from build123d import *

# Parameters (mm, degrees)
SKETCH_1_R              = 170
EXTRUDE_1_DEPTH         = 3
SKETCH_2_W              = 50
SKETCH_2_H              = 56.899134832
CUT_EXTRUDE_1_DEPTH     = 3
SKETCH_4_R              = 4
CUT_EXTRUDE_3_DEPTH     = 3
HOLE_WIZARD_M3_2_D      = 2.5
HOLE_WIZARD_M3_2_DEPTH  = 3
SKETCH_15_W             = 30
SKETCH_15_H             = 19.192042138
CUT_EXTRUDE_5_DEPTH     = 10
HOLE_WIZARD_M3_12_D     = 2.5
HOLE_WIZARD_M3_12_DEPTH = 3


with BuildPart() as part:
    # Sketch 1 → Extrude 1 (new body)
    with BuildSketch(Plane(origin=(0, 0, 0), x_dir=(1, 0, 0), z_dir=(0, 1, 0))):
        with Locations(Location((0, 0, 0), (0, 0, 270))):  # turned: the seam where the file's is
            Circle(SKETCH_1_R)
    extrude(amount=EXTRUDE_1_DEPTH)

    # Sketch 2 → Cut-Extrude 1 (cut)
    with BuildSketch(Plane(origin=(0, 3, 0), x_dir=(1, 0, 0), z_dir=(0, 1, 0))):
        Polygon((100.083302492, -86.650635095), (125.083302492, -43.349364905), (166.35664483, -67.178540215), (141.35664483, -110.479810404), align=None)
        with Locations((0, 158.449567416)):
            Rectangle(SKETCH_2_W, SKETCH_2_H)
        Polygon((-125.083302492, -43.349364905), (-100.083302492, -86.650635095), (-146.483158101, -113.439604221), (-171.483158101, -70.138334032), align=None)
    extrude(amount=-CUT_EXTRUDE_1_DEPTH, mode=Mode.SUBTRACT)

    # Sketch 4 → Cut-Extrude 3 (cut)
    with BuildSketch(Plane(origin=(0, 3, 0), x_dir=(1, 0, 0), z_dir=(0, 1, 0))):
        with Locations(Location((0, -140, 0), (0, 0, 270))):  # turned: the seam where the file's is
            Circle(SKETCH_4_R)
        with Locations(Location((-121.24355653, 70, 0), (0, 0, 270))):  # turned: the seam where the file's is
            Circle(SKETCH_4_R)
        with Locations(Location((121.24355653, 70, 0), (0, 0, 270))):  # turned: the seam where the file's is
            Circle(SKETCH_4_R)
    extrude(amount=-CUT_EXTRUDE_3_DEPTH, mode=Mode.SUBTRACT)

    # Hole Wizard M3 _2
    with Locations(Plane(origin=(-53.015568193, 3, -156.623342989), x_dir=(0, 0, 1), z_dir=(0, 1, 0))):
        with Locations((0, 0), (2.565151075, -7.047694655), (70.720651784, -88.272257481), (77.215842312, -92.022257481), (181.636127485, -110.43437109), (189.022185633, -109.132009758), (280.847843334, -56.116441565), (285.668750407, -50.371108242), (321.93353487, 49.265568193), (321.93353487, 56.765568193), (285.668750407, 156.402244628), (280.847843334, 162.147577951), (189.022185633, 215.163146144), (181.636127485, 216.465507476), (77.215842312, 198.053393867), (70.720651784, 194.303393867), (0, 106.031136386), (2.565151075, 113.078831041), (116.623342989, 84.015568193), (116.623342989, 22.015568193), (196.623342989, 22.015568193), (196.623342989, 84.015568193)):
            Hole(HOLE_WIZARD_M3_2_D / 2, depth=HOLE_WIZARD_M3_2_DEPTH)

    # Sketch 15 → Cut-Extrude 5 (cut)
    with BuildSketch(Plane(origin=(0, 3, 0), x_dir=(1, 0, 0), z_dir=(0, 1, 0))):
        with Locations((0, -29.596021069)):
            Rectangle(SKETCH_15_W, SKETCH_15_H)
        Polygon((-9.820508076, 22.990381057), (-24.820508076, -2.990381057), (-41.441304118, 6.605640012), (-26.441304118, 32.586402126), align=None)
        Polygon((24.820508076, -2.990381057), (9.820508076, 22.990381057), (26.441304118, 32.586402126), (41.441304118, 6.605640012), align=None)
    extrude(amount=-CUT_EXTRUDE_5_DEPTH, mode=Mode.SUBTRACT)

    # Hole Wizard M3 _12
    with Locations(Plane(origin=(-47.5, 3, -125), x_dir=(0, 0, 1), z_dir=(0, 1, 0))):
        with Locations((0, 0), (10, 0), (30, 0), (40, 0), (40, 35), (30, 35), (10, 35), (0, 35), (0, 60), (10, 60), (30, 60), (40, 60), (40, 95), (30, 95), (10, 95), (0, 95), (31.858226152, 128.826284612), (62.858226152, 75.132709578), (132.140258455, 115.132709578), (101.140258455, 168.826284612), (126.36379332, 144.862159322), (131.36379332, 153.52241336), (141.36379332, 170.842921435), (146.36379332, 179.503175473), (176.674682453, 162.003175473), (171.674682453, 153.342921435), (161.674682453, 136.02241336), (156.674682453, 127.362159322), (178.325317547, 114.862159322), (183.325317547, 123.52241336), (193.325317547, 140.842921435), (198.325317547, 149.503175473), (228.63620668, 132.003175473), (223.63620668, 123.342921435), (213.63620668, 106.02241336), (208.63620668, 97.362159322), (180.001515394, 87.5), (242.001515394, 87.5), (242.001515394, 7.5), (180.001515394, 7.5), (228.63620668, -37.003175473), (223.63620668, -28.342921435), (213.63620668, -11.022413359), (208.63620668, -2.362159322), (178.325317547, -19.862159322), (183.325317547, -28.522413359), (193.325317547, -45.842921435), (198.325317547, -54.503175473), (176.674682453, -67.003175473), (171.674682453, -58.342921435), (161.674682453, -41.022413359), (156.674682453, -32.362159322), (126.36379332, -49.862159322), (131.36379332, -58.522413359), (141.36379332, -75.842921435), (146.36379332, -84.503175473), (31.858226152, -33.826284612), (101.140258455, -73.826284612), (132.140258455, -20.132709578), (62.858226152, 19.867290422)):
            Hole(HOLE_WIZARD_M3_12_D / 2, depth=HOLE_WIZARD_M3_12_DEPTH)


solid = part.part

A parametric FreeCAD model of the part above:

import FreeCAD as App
import Part
import Sketcher

V = App.Vector
Q = App.Units.Quantity


def add_polygon(sketch, points):
    """Adds a closed chain of lines whose ends are joined by coincident constraints."""
    first, n = sketch.GeometryCount, len(points)
    for a, b in zip(points, points[1:] + points[:1]):
        sketch.addGeometry(Part.LineSegment(App.Vector(*a, 0), App.Vector(*b, 0)), False)
    for i in range(n):
        sketch.addConstraint(Sketcher.Constraint("Coincident", first + i, 2, first + (i + 1) % n, 1))

doc = App.newDocument("Part")
body = doc.addObject("PartDesign::Body", "Body")

# Sketch on XZ plane
sketch1 = body.newObject("Sketcher::SketchObject", "Sketch")
sketch1.AttachmentSupport = (doc.getObject("XZ_Plane"), [""])
sketch1.MapMode = "FlatFace"
sketch1.addGeometry(Part.Circle(V(0, 0, 0), V(0, 0, 1), 170), False)
sketch1.addConstraint([
    Sketcher.Constraint("Coincident", 0, 3, -1, 1),
    Sketcher.Constraint("Diameter", 0, Q("340 mm")),
])
pad1 = body.newObject("PartDesign::Pad", "Pad")
pad1.Profile = sketch1
pad1.Length = 3
pad1.Reversed = True

# Sketch on XZ plane
sketch2 = body.newObject("Sketcher::SketchObject", "Sketch001")
sketch2.AttachmentSupport = (doc.getObject("XZ_Plane"), [""])
sketch2.MapMode = "FlatFace"
sketch2.AttachmentOffset = App.Placement(V(0, 0, -3), App.Rotation())
add_polygon(sketch2, [(125, 43), (100, 87), (141, 110), (166, 67)])  # lines 0-3
add_polygon(sketch2, [(-25, -187), (-25, -130), (25, -130), (25, -187)])  # lines 4-7
add_polygon(sketch2, [(-100, 87), (-125, 43), (-171, 70), (-146, 113)])  # lines 8-11
sketch2.addConstraint([
    Sketcher.Constraint("Vertical", 4),
    Sketcher.Constraint("Horizontal", 5),
    Sketcher.Constraint("Vertical", 6),
    Sketcher.Constraint("Horizontal", 7),
    Sketcher.Constraint("Symmetric", 3, 2, 8, 2, -2),
    Sketcher.Constraint("Symmetric", 0, 2, 11, 2, -2),
    Sketcher.Constraint("Perpendicular", 0, 1),
    Sketcher.Constraint("Perpendicular", 1, 2),
    Sketcher.Constraint("Perpendicular", 2, 3),
    Sketcher.Constraint("Perpendicular", 8, 9),
    Sketcher.Constraint("Perpendicular", 9, 10),
    Sketcher.Constraint("Perpendicular", 10, 11),
    Sketcher.Constraint("DistanceX", 5, 1, 5, 2, Q("50 mm")),
    Sketcher.Constraint("Angle", 0, Q("120 deg")),
    Sketcher.Constraint("Distance", 0, Q("50 mm")),
    Sketcher.Constraint("DistanceX", 4, 2, -1, 1, Q("25 mm")),
    Sketcher.Constraint("DistanceY", 4, 2, -1, 1, Q("130 mm")),
    Sketcher.Constraint("DistanceY", 6, 2, 3, 2, Q("230.2485 mm")),
    Sketcher.Constraint("DistanceY", 9, 2, 0, 2, Q("16.512301 mm")),
    Sketcher.Constraint("Distance", 1, Q("47.658351 mm")),
    Sketcher.Constraint("DistanceY", 4, 1, 4, 2, Q("56.899135 mm")),
    Sketcher.Constraint("DistanceX", 9, 2, -1, 1, Q("171.483158 mm")),
])
pocket1 = body.newObject("PartDesign::Pocket", "Pocket")
pocket1.Profile = sketch2
pocket1.Length = 3
pocket1.Reversed = True

# Sketch on XZ plane
sketch3 = body.newObject("Sketcher::SketchObject", "Sketch002")
sketch3.AttachmentSupport = (doc.getObject("XZ_Plane"), [""])
sketch3.MapMode = "FlatFace"
sketch3.AttachmentOffset = App.Placement(V(0, 0, -3), App.Rotation())
sketch3.addGeometry([
    Part.Circle(V(0, 140, 0), V(0, 0, 1), 4),
    Part.Circle(V(-121.2, -70, 0), V(0, 0, 1), 4),
    Part.Circle(V(121.2, -70, 0), V(0, 0, 1), 4),
], False)
sketch3.addConstraint([
    Sketcher.Constraint("Equal", 0, 1),
    Sketcher.Constraint("Equal", 1, 2),
    Sketcher.Constraint("Symmetric", 1, 3, 2, 3, -2),
    Sketcher.Constraint("PointOnObject", 0, 3, -2),
    Sketcher.Constraint("Diameter", 0, Q("8 mm")),
    Sketcher.Constraint("DistanceY", -1, 1, 0, 3, Q("140 mm")),
    Sketcher.Constraint("DistanceY", 1, 3, -1, 1, Q("70 mm")),
    Sketcher.Constraint("DistanceX", 1, 3, -1, 1, Q("121.243557 mm")),
])
pocket2 = body.newObject("PartDesign::Pocket", "Pocket001")
pocket2.Profile = sketch3
pocket2.Length = 3
pocket2.Reversed = True

# Sketch on XZ plane
sketch4 = body.newObject("Sketcher::SketchObject", "Sketch003")
sketch4.AttachmentSupport = (doc.getObject("XZ_Plane"), [""])
sketch4.MapMode = "FlatFace"
sketch4.AttachmentOffset = App.Placement(V(0, 0, -3), App.Rotation())
sketch4.addGeometry([
    Part.Circle(V(-53, -156.6, 0), V(0, 0, 1), 1.2),  # 0
    Part.Circle(V(-60.1, -154.1, 0), V(0, 0, 1), 1.2),  # 1
    Part.Circle(V(-141.3, -85.9, 0), V(0, 0, 1), 1.2),  # 2
    Part.Circle(V(-145, -79.4, 0), V(0, 0, 1), 1.2),  # 3
    Part.Circle(V(-163.4, 25, 0), V(0, 0, 1), 1.2),  # 4
    Part.Circle(V(-162.1, 32.4, 0), V(0, 0, 1), 1.2),  # 5
    Part.Circle(V(-109.1, 124.2, 0), V(0, 0, 1), 1.2),  # 6
    Part.Circle(V(-103.4, 129, 0), V(0, 0, 1), 1.2),  # 7
    Part.Circle(V(-3.8, 165.3, 0), V(0, 0, 1), 1.2),  # 8
    Part.Circle(V(3.8, 165.3, 0), V(0, 0, 1), 1.2),  # 9
    Part.Circle(V(103.4, 129, 0), V(0, 0, 1), 1.2),  # 10
    Part.Circle(V(109.1, 124.2, 0), V(0, 0, 1), 1.2),  # 11
    Part.Circle(V(162.1, 32.4, 0), V(0, 0, 1), 1.2),  # 12
    Part.Circle(V(163.4, 25, 0), V(0, 0, 1), 1.2),  # 13
    Part.Circle(V(145, -79.4, 0), V(0, 0, 1), 1.2),  # 14
    Part.Circle(V(141.3, -85.9, 0), V(0, 0, 1), 1.2),  # 15
    Part.Circle(V(53, -156.6, 0), V(0, 0, 1), 1.2),  # 16
    Part.Circle(V(60.1, -154.1, 0), V(0, 0, 1), 1.2),  # 17
    Part.Circle(V(31, -40, 0), V(0, 0, 1), 1.2),  # 18
    Part.Circle(V(-31, -40, 0), V(0, 0, 1), 1.2),  # 19
    Part.Circle(V(-31, 40, 0), V(0, 0, 1), 1.2),  # 20
    Part.Circle(V(31, 40, 0), V(0, 0, 1), 1.2),  # 21
], False)
sketch4.addConstraint([
    Sketcher.Constraint("Equal", 0, 1),
    Sketcher.Constraint("Equal", 1, 2),
    Sketcher.Constraint("Equal", 2, 3),
    Sketcher.Constraint("Equal", 3, 4),
    Sketcher.Constraint("Equal", 4, 5),
    Sketcher.Constraint("Equal", 5, 6),
    Sketcher.Constraint("Equal", 6, 7),
    Sketcher.Constraint("Equal", 7, 8),
    Sketcher.Constraint("Equal", 8, 9),
    Sketcher.Constraint("Equal", 9, 10),
    Sketcher.Constraint("Equal", 10, 11),
    Sketcher.Constraint("Equal", 11, 12),
    Sketcher.Constraint("Equal", 12, 13),
    Sketcher.Constraint("Equal", 13, 14),
    Sketcher.Constraint("Equal", 14, 15),
    Sketcher.Constraint("Equal", 15, 16),
    Sketcher.Constraint("Equal", 16, 17),
    Sketcher.Constraint("Equal", 17, 18),
    Sketcher.Constraint("Equal", 18, 19),
    Sketcher.Constraint("Equal", 19, 20),
    Sketcher.Constraint("Equal", 20, 21),
    Sketcher.Constraint("Symmetric", 18, 3, 20, 3, -1, 1),
    Sketcher.Constraint("Symmetric", 19, 3, 21, 3, -1, 1),
    Sketcher.Constraint("Symmetric", 8, 3, 9, 3, -2),
    Sketcher.Constraint("Symmetric", 7, 3, 10, 3, -2),
    Sketcher.Constraint("Symmetric", 6, 3, 11, 3, -2),
    Sketcher.Constraint("Symmetric", 5, 3, 12, 3, -2),
    Sketcher.Constraint("Symmetric", 4, 3, 13, 3, -2),
    Sketcher.Constraint("Symmetric", 3, 3, 14, 3, -2),
    Sketcher.Constraint("Symmetric", 2, 3, 15, 3, -2),
    Sketcher.Constraint("Symmetric", 0, 3, 16, 3, -2),
    Sketcher.Constraint("Symmetric", 1, 3, 17, 3, -2),
    Sketcher.Constraint("Symmetric", 18, 3, 19, 3, -2),
    Sketcher.Constraint("Diameter", 0, Q("2.5 mm")),
    Sketcher.Constraint("DistanceX", -1, 1, 18, 3, Q("31 mm")),
    Sketcher.Constraint("DistanceY", 18, 3, -1, 1, Q("40 mm")),
    Sketcher.Constraint("DistanceX", 8, 3, 9, 3, Q("7.5 mm")),
    Sketcher.Constraint("DistanceX", 3, 3, 2, 3, Q("3.75 mm")),
    Sketcher.Constraint("DistanceY", 3, 3, 6, 3, Q("203.632001 mm")),
    Sketcher.Constraint("DistanceY", 3, 3, -1, 1, Q("79.407501 mm")),
    Sketcher.Constraint("DistanceY", 1, 3, 2, 3, Q("68.155501 mm")),
    Sketcher.Constraint("DistanceX", 5, 3, 7, 3, Q("58.760902 mm")),
    Sketcher.Constraint("DistanceY", 2, 3, 7, 3, Q("214.948099 mm")),
    Sketcher.Constraint("DistanceX", 0, 3, -1, 1, Q("53.015568 mm")),
    Sketcher.Constraint("DistanceY", 1, 3, -1, 1, Q("154.058192 mm")),
    Sketcher.Constraint("DistanceX", 4, 3, -1, 1, Q("163.449939 mm")),
    Sketcher.Constraint("DistanceX", 6, 3, -1, 1, Q("109.13201 mm")),
    Sketcher.Constraint("DistanceY", -1, 1, 8, 3, Q("165.310192 mm")),
    Sketcher.Constraint("DistanceY", 0, 3, 1, 3, Q("2.565151 mm")),
    Sketcher.Constraint("DistanceX", 4, 3, 5, 3, Q("1.302361 mm")),
    Sketcher.Constraint("DistanceY", 4, 3, 5, 3, Q("7.386058 mm")),
    Sketcher.Constraint("DistanceX", 3, 3, 7, 3, Q("41.651149 mm")),
    Sketcher.Constraint("DistanceY", 5, 3, 8, 3, Q("132.911349 mm")),
    Sketcher.Constraint("DistanceX", 1, 3, 15, 3, Q("201.351089 mm")),
])
doc.recompute()
hole = body.newObject("PartDesign::Hole", "Hole")
hole.Profile = sketch4
hole.ThreadType = "None"
hole.Diameter = 2.5
hole.DepthType = "Dimension"
hole.Depth = 3
hole.DrillPoint = "Flat"
hole.Reversed = True

# Sketch on XZ plane
sketch5 = body.newObject("Sketcher::SketchObject", "Sketch004")
sketch5.AttachmentSupport = (doc.getObject("XZ_Plane"), [""])
sketch5.MapMode = "FlatFace"
sketch5.AttachmentOffset = App.Placement(V(0, 0, -3), App.Rotation())
add_polygon(sketch5, [(-15, 20), (-15, 39), (15, 39), (15, 20)])  # lines 0-3
add_polygon(sketch5, [(-25, 3), (-10, -23), (-26, -33), (-41, -7)])  # lines 4-7
add_polygon(sketch5, [(10, -23), (25, 3), (41, -7), (26, -33)])  # lines 8-11
sketch5.addConstraint([
    Sketcher.Constraint("Vertical", 0),
    Sketcher.Constraint("Horizontal", 1),
    Sketcher.Constraint("Vertical", 2),
    Sketcher.Constraint("Horizontal", 3),
    Sketcher.Constraint("Symmetric", 7, 2, 8, 2, -2),
    Sketcher.Constraint("Symmetric", 6, 2, 9, 2, -2),
    Sketcher.Constraint("Symmetric", 5, 2, 10, 2, -2),
    Sketcher.Constraint("Symmetric", 4, 2, 11, 2, -2),
    Sketcher.Constraint("Perpendicular", 4, 5),
    Sketcher.Constraint("Perpendicular", 5, 6),
    Sketcher.Constraint("Perpendicular", 6, 7),
    Sketcher.Constraint("DistanceX", 1, 1, 1, 2, Q("30 mm")),
    Sketcher.Constraint("Angle", 4, Q("-60 deg")),
    Sketcher.Constraint("Distance", 4, Q("30 mm")),
    Sketcher.Constraint("DistanceX", 0, 2, -1, 1, Q("15 mm")),
    Sketcher.Constraint("DistanceY", -1, 1, 2, 2, Q("20 mm")),
    Sketcher.Constraint("DistanceY", 0, 1, 0, 2, Q("19.192042 mm")),
    Sketcher.Constraint("DistanceX", 4, 2, -1, 1, Q("9.820508 mm")),
    Sketcher.Constraint("DistanceY", 4, 2, -1, 1, Q("22.990381 mm")),
    Sketcher.Constraint("DistanceY", 6, 2, -1, 1, Q("6.60564 mm")),
])
pocket3 = body.newObject("PartDesign::Pocket", "Pocket002")
pocket3.Profile = sketch5
pocket3.Length = 10
pocket3.Reversed = True

# Sketch on XZ plane
sketch6 = body.newObject("Sketcher::SketchObject", "Sketch005")
sketch6.AttachmentSupport = (doc.getObject("XZ_Plane"), [""])
sketch6.MapMode = "FlatFace"
sketch6.AttachmentOffset = App.Placement(V(0, 0, -3), App.Rotation())
sketch6.addGeometry([
    Part.Circle(V(-47.5, -125, 0), V(0, 0, 1), 1.2),  # 0
    Part.Circle(V(-47.5, -115, 0), V(0, 0, 1), 1.2),  # 1
    Part.Circle(V(-47.5, -95, 0), V(0, 0, 1), 1.2),  # 2
    Part.Circle(V(-47.5, -85, 0), V(0, 0, 1), 1.2),  # 3
    Part.Circle(V(-12.5, -85, 0), V(0, 0, 1), 1.2),  # 4
    Part.Circle(V(-12.5, -95, 0), V(0, 0, 1), 1.2),  # 5
    Part.Circle(V(-12.5, -115, 0), V(0, 0, 1), 1.2),  # 6
    Part.Circle(V(-12.5, -125, 0), V(0, 0, 1), 1.2),  # 7
    Part.Circle(V(12.5, -125, 0), V(0, 0, 1), 1.2),  # 8
    Part.Circle(V(12.5, -115, 0), V(0, 0, 1), 1.2),  # 9
    Part.Circle(V(12.5, -95, 0), V(0, 0, 1), 1.2),  # 10
    Part.Circle(V(12.5, -85, 0), V(0, 0, 1), 1.2),  # 11
    Part.Circle(V(47.5, -85, 0), V(0, 0, 1), 1.2),  # 12
    Part.Circle(V(47.5, -95, 0), V(0, 0, 1), 1.2),  # 13
    Part.Circle(V(47.5, -115, 0), V(0, 0, 1), 1.2),  # 14
    Part.Circle(V(47.5, -125, 0), V(0, 0, 1), 1.2),  # 15
    Part.Circle(V(81.3, -93.1, 0), V(0, 0, 1), 1.2),  # 16
    Part.Circle(V(27.6, -62.1, 0), V(0, 0, 1), 1.2),  # 17
    Part.Circle(V(67.6, 7.1, 0), V(0, 0, 1), 1.2),  # 18
    Part.Circle(V(121.3, -23.9, 0), V(0, 0, 1), 1.2),  # 19
    Part.Circle(V(97.4, 1.4, 0), V(0, 0, 1), 1.2),  # 20
    Part.Circle(V(106, 6.4, 0), V(0, 0, 1), 1.2),  # 21
    Part.Circle(V(123.3, 16.4, 0), V(0, 0, 1), 1.2),  # 22
    Part.Circle(V(132, 21.4, 0), V(0, 0, 1), 1.2),  # 23
    Part.Circle(V(114.5, 51.7, 0), V(0, 0, 1), 1.2),  # 24
    Part.Circle(V(105.8, 46.7, 0), V(0, 0, 1), 1.2),  # 25
    Part.Circle(V(88.5, 36.7, 0), V(0, 0, 1), 1.2),  # 26
    Part.Circle(V(79.9, 31.7, 0), V(0, 0, 1), 1.2),  # 27
    Part.Circle(V(67.4, 53.3, 0), V(0, 0, 1), 1.2),  # 28
    Part.Circle(V(76, 58.3, 0), V(0, 0, 1), 1.2),  # 29
    Part.Circle(V(93.3, 68.3, 0), V(0, 0, 1), 1.2),  # 30
    Part.Circle(V(102, 73.3, 0), V(0, 0, 1), 1.2),  # 31
    Part.Circle(V(84.5, 103.6, 0), V(0, 0, 1), 1.2),  # 32
    Part.Circle(V(75.8, 98.6, 0), V(0, 0, 1), 1.2),  # 33
    Part.Circle(V(58.5, 88.6, 0), V(0, 0, 1), 1.2),  # 34
    Part.Circle(V(49.9, 83.6, 0), V(0, 0, 1), 1.2),  # 35
    Part.Circle(V(40, 55, 0), V(0, 0, 1), 1.2),  # 36
    Part.Circle(V(40, 117, 0), V(0, 0, 1), 1.2),  # 37
    Part.Circle(V(-40, 117, 0), V(0, 0, 1), 1.2),  # 38
    Part.Circle(V(-40, 55, 0), V(0, 0, 1), 1.2),  # 39
    Part.Circle(V(-84.5, 103.6, 0), V(0, 0, 1), 1.2),  # 40
    Part.Circle(V(-75.8, 98.6, 0), V(0, 0, 1), 1.2),  # 41
    Part.Circle(V(-58.5, 88.6, 0), V(0, 0, 1), 1.2),  # 42
    Part.Circle(V(-49.9, 83.6, 0), V(0, 0, 1), 1.2),  # 43
    Part.Circle(V(-67.4, 53.3, 0), V(0, 0, 1), 1.2),  # 44
    Part.Circle(V(-76, 58.3, 0), V(0, 0, 1), 1.2),  # 45
    Part.Circle(V(-93.3, 68.3, 0), V(0, 0, 1), 1.2),  # 46
    Part.Circle(V(-102, 73.3, 0), V(0, 0, 1), 1.2),  # 47
    Part.Circle(V(-114.5, 51.7, 0), V(0, 0, 1), 1.2),  # 48
    Part.Circle(V(-105.8, 46.7, 0), V(0, 0, 1), 1.2),  # 49
    Part.Circle(V(-88.5, 36.7, 0), V(0, 0, 1), 1.2),  # 50
    Part.Circle(V(-79.9, 31.7, 0), V(0, 0, 1), 1.2),  # 51
    Part.Circle(V(-97.4, 1.4, 0), V(0, 0, 1), 1.2),  # 52
    Part.Circle(V(-106, 6.4, 0), V(0, 0, 1), 1.2),  # 53
    Part.Circle(V(-123.3, 16.4, 0), V(0, 0, 1), 1.2),  # 54
    Part.Circle(V(-132, 21.4, 0), V(0, 0, 1), 1.2),  # 55
    Part.Circle(V(-81.3, -93.1, 0), V(0, 0, 1), 1.2),  # 56
    Part.Circle(V(-121.3, -23.9, 0), V(0, 0, 1), 1.2),  # 57
    Part.Circle(V(-67.6, 7.1, 0), V(0, 0, 1), 1.2),  # 58
    Part.Circle(V(-27.6, -62.1, 0), V(0, 0, 1), 1.2),  # 59
], False)
sketch6.addConstraint([
    Sketcher.Constraint("Equal", 0, 1),
    Sketcher.Constraint("Equal", 1, 2),
    Sketcher.Constraint("Equal", 2, 3),
    Sketcher.Constraint("Equal", 3, 4),
    Sketcher.Constraint("Equal", 4, 5),
    Sketcher.Constraint("Equal", 5, 6),
    Sketcher.Constraint("Equal", 6, 7),
    Sketcher.Constraint("Equal", 7, 8),
    Sketcher.Constraint("Equal", 8, 9),
    Sketcher.Constraint("Equal", 9, 10),
    Sketcher.Constraint("Equal", 10, 11),
    Sketcher.Constraint("Equal", 11, 12),
    Sketcher.Constraint("Equal", 12, 13),
    Sketcher.Constraint("Equal", 13, 14),
    Sketcher.Constraint("Equal", 14, 15),
    Sketcher.Constraint("Equal", 15, 16),
    Sketcher.Constraint("Equal", 16, 17),
    Sketcher.Constraint("Equal", 17, 18),
    Sketcher.Constraint("Equal", 18, 19),
    Sketcher.Constraint("Equal", 19, 20),
    Sketcher.Constraint("Equal", 20, 21),
    Sketcher.Constraint("Equal", 21, 22),
    Sketcher.Constraint("Equal", 22, 23),
    Sketcher.Constraint("Equal", 23, 24),
    Sketcher.Constraint("Equal", 24, 25),
    Sketcher.Constraint("Equal", 25, 26),
    Sketcher.Constraint("Equal", 26, 27),
    Sketcher.Constraint("Equal", 27, 28),
    Sketcher.Constraint("Equal", 28, 29),
    Sketcher.Constraint("Equal", 29, 30),
    Sketcher.Constraint("Equal", 30, 31),
    Sketcher.Constraint("Equal", 31, 32),
    Sketcher.Constraint("Equal", 32, 33),
    Sketcher.Constraint("Equal", 33, 34),
    Sketcher.Constraint("Equal", 34, 35),
    Sketcher.Constraint("Equal", 35, 36),
    Sketcher.Constraint("Equal", 36, 37),
    Sketcher.Constraint("Equal", 37, 38),
    Sketcher.Constraint("Equal", 38, 39),
    Sketcher.Constraint("Equal", 39, 40),
    Sketcher.Constraint("Equal", 40, 41),
    Sketcher.Constraint("Equal", 41, 42),
    Sketcher.Constraint("Equal", 42, 43),
    Sketcher.Constraint("Equal", 43, 44),
    Sketcher.Constraint("Equal", 44, 45),
    Sketcher.Constraint("Equal", 45, 46),
    Sketcher.Constraint("Equal", 46, 47),
    Sketcher.Constraint("Equal", 47, 48),
    Sketcher.Constraint("Equal", 48, 49),
    Sketcher.Constraint("Equal", 49, 50),
    Sketcher.Constraint("Equal", 50, 51),
    Sketcher.Constraint("Equal", 51, 52),
    Sketcher.Constraint("Equal", 52, 53),
    Sketcher.Constraint("Equal", 53, 54),
    Sketcher.Constraint("Equal", 54, 55),
    Sketcher.Constraint("Equal", 55, 56),
    Sketcher.Constraint("Equal", 56, 57),
    Sketcher.Constraint("Equal", 57, 58),
    Sketcher.Constraint("Equal", 58, 59),
    Sketcher.Constraint("Symmetric", 7, 3, 8, 3, -2),
    Sketcher.Constraint("Symmetric", 6, 3, 9, 3, -2),
    Sketcher.Constraint("Symmetric", 5, 3, 10, 3, -2),
    Sketcher.Constraint("Symmetric", 4, 3, 11, 3, -2),
    Sketcher.Constraint("Symmetric", 3, 3, 12, 3, -2),
    Sketcher.Constraint("Symmetric", 2, 3, 13, 3, -2),
    Sketcher.Constraint("Symmetric", 1, 3, 14, 3, -2),
    Sketcher.Constraint("Symmetric", 0, 3, 15, 3, -2),
    Sketcher.Constraint("Symmetric", 37, 3, 38, 3, -2),
    Sketcher.Constraint("Symmetric", 36, 3, 39, 3, -2),
    Sketcher.Constraint("Symmetric", 32, 3, 40, 3, -2),
    Sketcher.Constraint("Symmetric", 33, 3, 41, 3, -2),
    Sketcher.Constraint("Symmetric", 34, 3, 42, 3, -2),
    Sketcher.Constraint("Symmetric", 35, 3, 43, 3, -2),
    Sketcher.Constraint("Symmetric", 28, 3, 44, 3, -2),
    Sketcher.Constraint("Symmetric", 29, 3, 45, 3, -2),
    Sketcher.Constraint("Symmetric", 30, 3, 46, 3, -2),
    Sketcher.Constraint("Symmetric", 31, 3, 47, 3, -2),
    Sketcher.Constraint("Symmetric", 24, 3, 48, 3, -2),
    Sketcher.Constraint("Symmetric", 25, 3, 49, 3, -2),
    Sketcher.Constraint("Symmetric", 26, 3, 50, 3, -2),
    Sketcher.Constraint("Symmetric", 27, 3, 51, 3, -2),
    Sketcher.Constraint("Symmetric", 20, 3, 52, 3, -2),
    Sketcher.Constraint("Symmetric", 21, 3, 53, 3, -2),
    Sketcher.Constraint("Symmetric", 22, 3, 54, 3, -2),
    Sketcher.Constraint("Symmetric", 23, 3, 55, 3, -2),
    Sketcher.Constraint("Symmetric", 16, 3, 56, 3, -2),
    Sketcher.Constraint("Symmetric", 19, 3, 57, 3, -2),
    Sketcher.Constraint("Symmetric", 18, 3, 58, 3, -2),
    Sketcher.Constraint("Symmetric", 17, 3, 59, 3, -2),
    Sketcher.Constraint("Horizontal", 3, 3, 4, 3),
    Sketcher.Constraint("Horizontal", 2, 3, 5, 3),
    Sketcher.Constraint("Horizontal", 1, 3, 6, 3),
    Sketcher.Constraint("Horizontal", 0, 3, 7, 3),
    Sketcher.Constraint("Vertical", 0, 3, 1, 3),
    Sketcher.Constraint("Vertical", 1, 3, 2, 3),
    Sketcher.Constraint("Vertical", 2, 3, 3, 3),
    Sketcher.Constraint("Vertical", 4, 3, 5, 3),
    Sketcher.Constraint("Vertical", 5, 3, 6, 3),
    Sketcher.Constraint("Vertical", 6, 3, 7, 3),
    Sketcher.Constraint("Vertical", 36, 3, 37, 3),
    Sketcher.Constraint("Diameter", 0, Q("2.5 mm")),
    Sketcher.Constraint("DistanceY", 0, 3, -1, 1, Q("125 mm")),
    Sketcher.Constraint("DistanceY", 1, 3, -1, 1, Q("115 mm")),
    Sketcher.Constraint("DistanceY", 2, 3, -1, 1, Q("95 mm")),
    Sketcher.Constraint("DistanceY", 3, 3, -1, 1, Q("85 mm")),
    Sketcher.Constraint("DistanceX", -1, 1, 36, 3, Q("40 mm")),
    Sketcher.Constraint("DistanceX", 3, 3, 4, 3, Q("35 mm")),
    Sketcher.Constraint("DistanceX", 7, 3, 8, 3, Q("25 mm")),
    Sketcher.Constraint("DistanceX", 17, 3, 18, 3, Q("40 mm")),
    Sketcher.Constraint("DistanceY", 19, 3, 18, 3, Q("31 mm")),
    Sketcher.Constraint("DistanceX", 16, 3, 19, 3, Q("40 mm")),
    Sketcher.Constraint("DistanceY", 20, 3, 21, 3, Q("5 mm")),
    Sketcher.Constraint("DistanceY", 21, 3, 22, 3, Q("10 mm")),
    Sketcher.Constraint("DistanceY", 22, 3, 23, 3, Q("5 mm")),
    Sketcher.Constraint("DistanceY", 25, 3, 24, 3, Q("5 mm")),
    Sketcher.Constraint("DistanceY", 26, 3, 25, 3, Q("10 mm")),
    Sketcher.Constraint("DistanceY", 27, 3, 26, 3, Q("5 mm")),
    Sketcher.Constraint("DistanceY", 28, 3, 29, 3, Q("5 mm")),
    Sketcher.Constraint("DistanceY", 29, 3, 30, 3, Q("10 mm")),
    Sketcher.Constraint("DistanceY", 30, 3, 31, 3, Q("5 mm")),
    Sketcher.Constraint("DistanceX", 32, 3, 24, 3, Q("30 mm")),
    Sketcher.Constraint("DistanceY", 33, 3, 32, 3, Q("5 mm")),
    Sketcher.Constraint("DistanceY", 34, 3, 33, 3, Q("10 mm")),
    Sketcher.Constraint("DistanceY", 35, 3, 34, 3, Q("5 mm")),
    Sketcher.Constraint("DistanceY", 36, 3, 37, 3, Q("62 mm")),
    Sketcher.Constraint("DistanceX", 52, 3, 44, 3, Q("30 mm")),
    Sketcher.Constraint("DistanceX", 24, 3, 23, 3, Q("17.5 mm")),
    Sketcher.Constraint("DistanceX", 25, 3, 22, 3, Q("17.5 mm")),
    Sketcher.Constraint("DistanceX", 26, 3, 21, 3, Q("17.5 mm")),
    Sketcher.Constraint("DistanceX", 27, 3, 20, 3, Q("17.5 mm")),
    Sketcher.Constraint("DistanceX", 29, 3, 26, 3, Q("12.5 mm")),
    Sketcher.Constraint("DistanceX", 30, 3, 25, 3, Q("12.5 mm")),
    Sketcher.Constraint("DistanceX", 31, 3, 24, 3, Q("12.5 mm")),
    Sketcher.Constraint("DistanceX", 33, 3, 30, 3, Q("17.5 mm")),
    Sketcher.Constraint("DistanceX", 34, 3, 29, 3, Q("17.5 mm")),
    Sketcher.Constraint("DistanceX", 35, 3, 28, 3, Q("17.5 mm")),
    Sketcher.Constraint("DistanceX", -1, 1, 17, 3, Q("27.63271 mm")),
    Sketcher.Constraint("DistanceY", -1, 1, 18, 3, Q("7.140258 mm")),
    Sketcher.Constraint("DistanceX", -1, 1, 20, 3, Q("97.362159 mm")),
    Sketcher.Constraint("DistanceX", -1, 1, 22, 3, Q("123.342921 mm")),
    Sketcher.Constraint("DistanceX", 21, 3, 19, 3, Q("15.303871 mm")),
    Sketcher.Constraint("DistanceX", 21, 3, 22, 3, Q("17.320508 mm")),
    Sketcher.Constraint("DistanceX", 19, 3, 23, 3, Q("10.676891 mm")),
    Sketcher.Constraint("DistanceY", 23, 3, 24, 3, Q("30.310889 mm")),
    Sketcher.Constraint("DistanceY", 18, 3, 28, 3, Q("46.185059 mm")),
    Sketcher.Constraint("DistanceY", 31, 3, 32, 3, Q("30.310889 mm")),
    Sketcher.Constraint("DistanceY", 36, 3, 35, 3, Q("28.634691 mm")),
    Sketcher.Constraint("DistanceY", 16, 3, -1, 1, Q("93.141774 mm")),
    Sketcher.Constraint("DistanceY", 17, 3, -1, 1, Q("62.141774 mm")),
    Sketcher.Constraint("DistanceY", -1, 1, 20, 3, Q("1.363793 mm")),
])
doc.recompute()
hole2 = body.newObject("PartDesign::Hole", "Hole001")
hole2.Profile = sketch6
hole2.ThreadType = "None"
hole2.Diameter = 2.5
hole2.DepthType = "Dimension"
hole2.Depth = 3
hole2.DrillPoint = "Flat"
hole2.Reversed = True

doc.recompute()
